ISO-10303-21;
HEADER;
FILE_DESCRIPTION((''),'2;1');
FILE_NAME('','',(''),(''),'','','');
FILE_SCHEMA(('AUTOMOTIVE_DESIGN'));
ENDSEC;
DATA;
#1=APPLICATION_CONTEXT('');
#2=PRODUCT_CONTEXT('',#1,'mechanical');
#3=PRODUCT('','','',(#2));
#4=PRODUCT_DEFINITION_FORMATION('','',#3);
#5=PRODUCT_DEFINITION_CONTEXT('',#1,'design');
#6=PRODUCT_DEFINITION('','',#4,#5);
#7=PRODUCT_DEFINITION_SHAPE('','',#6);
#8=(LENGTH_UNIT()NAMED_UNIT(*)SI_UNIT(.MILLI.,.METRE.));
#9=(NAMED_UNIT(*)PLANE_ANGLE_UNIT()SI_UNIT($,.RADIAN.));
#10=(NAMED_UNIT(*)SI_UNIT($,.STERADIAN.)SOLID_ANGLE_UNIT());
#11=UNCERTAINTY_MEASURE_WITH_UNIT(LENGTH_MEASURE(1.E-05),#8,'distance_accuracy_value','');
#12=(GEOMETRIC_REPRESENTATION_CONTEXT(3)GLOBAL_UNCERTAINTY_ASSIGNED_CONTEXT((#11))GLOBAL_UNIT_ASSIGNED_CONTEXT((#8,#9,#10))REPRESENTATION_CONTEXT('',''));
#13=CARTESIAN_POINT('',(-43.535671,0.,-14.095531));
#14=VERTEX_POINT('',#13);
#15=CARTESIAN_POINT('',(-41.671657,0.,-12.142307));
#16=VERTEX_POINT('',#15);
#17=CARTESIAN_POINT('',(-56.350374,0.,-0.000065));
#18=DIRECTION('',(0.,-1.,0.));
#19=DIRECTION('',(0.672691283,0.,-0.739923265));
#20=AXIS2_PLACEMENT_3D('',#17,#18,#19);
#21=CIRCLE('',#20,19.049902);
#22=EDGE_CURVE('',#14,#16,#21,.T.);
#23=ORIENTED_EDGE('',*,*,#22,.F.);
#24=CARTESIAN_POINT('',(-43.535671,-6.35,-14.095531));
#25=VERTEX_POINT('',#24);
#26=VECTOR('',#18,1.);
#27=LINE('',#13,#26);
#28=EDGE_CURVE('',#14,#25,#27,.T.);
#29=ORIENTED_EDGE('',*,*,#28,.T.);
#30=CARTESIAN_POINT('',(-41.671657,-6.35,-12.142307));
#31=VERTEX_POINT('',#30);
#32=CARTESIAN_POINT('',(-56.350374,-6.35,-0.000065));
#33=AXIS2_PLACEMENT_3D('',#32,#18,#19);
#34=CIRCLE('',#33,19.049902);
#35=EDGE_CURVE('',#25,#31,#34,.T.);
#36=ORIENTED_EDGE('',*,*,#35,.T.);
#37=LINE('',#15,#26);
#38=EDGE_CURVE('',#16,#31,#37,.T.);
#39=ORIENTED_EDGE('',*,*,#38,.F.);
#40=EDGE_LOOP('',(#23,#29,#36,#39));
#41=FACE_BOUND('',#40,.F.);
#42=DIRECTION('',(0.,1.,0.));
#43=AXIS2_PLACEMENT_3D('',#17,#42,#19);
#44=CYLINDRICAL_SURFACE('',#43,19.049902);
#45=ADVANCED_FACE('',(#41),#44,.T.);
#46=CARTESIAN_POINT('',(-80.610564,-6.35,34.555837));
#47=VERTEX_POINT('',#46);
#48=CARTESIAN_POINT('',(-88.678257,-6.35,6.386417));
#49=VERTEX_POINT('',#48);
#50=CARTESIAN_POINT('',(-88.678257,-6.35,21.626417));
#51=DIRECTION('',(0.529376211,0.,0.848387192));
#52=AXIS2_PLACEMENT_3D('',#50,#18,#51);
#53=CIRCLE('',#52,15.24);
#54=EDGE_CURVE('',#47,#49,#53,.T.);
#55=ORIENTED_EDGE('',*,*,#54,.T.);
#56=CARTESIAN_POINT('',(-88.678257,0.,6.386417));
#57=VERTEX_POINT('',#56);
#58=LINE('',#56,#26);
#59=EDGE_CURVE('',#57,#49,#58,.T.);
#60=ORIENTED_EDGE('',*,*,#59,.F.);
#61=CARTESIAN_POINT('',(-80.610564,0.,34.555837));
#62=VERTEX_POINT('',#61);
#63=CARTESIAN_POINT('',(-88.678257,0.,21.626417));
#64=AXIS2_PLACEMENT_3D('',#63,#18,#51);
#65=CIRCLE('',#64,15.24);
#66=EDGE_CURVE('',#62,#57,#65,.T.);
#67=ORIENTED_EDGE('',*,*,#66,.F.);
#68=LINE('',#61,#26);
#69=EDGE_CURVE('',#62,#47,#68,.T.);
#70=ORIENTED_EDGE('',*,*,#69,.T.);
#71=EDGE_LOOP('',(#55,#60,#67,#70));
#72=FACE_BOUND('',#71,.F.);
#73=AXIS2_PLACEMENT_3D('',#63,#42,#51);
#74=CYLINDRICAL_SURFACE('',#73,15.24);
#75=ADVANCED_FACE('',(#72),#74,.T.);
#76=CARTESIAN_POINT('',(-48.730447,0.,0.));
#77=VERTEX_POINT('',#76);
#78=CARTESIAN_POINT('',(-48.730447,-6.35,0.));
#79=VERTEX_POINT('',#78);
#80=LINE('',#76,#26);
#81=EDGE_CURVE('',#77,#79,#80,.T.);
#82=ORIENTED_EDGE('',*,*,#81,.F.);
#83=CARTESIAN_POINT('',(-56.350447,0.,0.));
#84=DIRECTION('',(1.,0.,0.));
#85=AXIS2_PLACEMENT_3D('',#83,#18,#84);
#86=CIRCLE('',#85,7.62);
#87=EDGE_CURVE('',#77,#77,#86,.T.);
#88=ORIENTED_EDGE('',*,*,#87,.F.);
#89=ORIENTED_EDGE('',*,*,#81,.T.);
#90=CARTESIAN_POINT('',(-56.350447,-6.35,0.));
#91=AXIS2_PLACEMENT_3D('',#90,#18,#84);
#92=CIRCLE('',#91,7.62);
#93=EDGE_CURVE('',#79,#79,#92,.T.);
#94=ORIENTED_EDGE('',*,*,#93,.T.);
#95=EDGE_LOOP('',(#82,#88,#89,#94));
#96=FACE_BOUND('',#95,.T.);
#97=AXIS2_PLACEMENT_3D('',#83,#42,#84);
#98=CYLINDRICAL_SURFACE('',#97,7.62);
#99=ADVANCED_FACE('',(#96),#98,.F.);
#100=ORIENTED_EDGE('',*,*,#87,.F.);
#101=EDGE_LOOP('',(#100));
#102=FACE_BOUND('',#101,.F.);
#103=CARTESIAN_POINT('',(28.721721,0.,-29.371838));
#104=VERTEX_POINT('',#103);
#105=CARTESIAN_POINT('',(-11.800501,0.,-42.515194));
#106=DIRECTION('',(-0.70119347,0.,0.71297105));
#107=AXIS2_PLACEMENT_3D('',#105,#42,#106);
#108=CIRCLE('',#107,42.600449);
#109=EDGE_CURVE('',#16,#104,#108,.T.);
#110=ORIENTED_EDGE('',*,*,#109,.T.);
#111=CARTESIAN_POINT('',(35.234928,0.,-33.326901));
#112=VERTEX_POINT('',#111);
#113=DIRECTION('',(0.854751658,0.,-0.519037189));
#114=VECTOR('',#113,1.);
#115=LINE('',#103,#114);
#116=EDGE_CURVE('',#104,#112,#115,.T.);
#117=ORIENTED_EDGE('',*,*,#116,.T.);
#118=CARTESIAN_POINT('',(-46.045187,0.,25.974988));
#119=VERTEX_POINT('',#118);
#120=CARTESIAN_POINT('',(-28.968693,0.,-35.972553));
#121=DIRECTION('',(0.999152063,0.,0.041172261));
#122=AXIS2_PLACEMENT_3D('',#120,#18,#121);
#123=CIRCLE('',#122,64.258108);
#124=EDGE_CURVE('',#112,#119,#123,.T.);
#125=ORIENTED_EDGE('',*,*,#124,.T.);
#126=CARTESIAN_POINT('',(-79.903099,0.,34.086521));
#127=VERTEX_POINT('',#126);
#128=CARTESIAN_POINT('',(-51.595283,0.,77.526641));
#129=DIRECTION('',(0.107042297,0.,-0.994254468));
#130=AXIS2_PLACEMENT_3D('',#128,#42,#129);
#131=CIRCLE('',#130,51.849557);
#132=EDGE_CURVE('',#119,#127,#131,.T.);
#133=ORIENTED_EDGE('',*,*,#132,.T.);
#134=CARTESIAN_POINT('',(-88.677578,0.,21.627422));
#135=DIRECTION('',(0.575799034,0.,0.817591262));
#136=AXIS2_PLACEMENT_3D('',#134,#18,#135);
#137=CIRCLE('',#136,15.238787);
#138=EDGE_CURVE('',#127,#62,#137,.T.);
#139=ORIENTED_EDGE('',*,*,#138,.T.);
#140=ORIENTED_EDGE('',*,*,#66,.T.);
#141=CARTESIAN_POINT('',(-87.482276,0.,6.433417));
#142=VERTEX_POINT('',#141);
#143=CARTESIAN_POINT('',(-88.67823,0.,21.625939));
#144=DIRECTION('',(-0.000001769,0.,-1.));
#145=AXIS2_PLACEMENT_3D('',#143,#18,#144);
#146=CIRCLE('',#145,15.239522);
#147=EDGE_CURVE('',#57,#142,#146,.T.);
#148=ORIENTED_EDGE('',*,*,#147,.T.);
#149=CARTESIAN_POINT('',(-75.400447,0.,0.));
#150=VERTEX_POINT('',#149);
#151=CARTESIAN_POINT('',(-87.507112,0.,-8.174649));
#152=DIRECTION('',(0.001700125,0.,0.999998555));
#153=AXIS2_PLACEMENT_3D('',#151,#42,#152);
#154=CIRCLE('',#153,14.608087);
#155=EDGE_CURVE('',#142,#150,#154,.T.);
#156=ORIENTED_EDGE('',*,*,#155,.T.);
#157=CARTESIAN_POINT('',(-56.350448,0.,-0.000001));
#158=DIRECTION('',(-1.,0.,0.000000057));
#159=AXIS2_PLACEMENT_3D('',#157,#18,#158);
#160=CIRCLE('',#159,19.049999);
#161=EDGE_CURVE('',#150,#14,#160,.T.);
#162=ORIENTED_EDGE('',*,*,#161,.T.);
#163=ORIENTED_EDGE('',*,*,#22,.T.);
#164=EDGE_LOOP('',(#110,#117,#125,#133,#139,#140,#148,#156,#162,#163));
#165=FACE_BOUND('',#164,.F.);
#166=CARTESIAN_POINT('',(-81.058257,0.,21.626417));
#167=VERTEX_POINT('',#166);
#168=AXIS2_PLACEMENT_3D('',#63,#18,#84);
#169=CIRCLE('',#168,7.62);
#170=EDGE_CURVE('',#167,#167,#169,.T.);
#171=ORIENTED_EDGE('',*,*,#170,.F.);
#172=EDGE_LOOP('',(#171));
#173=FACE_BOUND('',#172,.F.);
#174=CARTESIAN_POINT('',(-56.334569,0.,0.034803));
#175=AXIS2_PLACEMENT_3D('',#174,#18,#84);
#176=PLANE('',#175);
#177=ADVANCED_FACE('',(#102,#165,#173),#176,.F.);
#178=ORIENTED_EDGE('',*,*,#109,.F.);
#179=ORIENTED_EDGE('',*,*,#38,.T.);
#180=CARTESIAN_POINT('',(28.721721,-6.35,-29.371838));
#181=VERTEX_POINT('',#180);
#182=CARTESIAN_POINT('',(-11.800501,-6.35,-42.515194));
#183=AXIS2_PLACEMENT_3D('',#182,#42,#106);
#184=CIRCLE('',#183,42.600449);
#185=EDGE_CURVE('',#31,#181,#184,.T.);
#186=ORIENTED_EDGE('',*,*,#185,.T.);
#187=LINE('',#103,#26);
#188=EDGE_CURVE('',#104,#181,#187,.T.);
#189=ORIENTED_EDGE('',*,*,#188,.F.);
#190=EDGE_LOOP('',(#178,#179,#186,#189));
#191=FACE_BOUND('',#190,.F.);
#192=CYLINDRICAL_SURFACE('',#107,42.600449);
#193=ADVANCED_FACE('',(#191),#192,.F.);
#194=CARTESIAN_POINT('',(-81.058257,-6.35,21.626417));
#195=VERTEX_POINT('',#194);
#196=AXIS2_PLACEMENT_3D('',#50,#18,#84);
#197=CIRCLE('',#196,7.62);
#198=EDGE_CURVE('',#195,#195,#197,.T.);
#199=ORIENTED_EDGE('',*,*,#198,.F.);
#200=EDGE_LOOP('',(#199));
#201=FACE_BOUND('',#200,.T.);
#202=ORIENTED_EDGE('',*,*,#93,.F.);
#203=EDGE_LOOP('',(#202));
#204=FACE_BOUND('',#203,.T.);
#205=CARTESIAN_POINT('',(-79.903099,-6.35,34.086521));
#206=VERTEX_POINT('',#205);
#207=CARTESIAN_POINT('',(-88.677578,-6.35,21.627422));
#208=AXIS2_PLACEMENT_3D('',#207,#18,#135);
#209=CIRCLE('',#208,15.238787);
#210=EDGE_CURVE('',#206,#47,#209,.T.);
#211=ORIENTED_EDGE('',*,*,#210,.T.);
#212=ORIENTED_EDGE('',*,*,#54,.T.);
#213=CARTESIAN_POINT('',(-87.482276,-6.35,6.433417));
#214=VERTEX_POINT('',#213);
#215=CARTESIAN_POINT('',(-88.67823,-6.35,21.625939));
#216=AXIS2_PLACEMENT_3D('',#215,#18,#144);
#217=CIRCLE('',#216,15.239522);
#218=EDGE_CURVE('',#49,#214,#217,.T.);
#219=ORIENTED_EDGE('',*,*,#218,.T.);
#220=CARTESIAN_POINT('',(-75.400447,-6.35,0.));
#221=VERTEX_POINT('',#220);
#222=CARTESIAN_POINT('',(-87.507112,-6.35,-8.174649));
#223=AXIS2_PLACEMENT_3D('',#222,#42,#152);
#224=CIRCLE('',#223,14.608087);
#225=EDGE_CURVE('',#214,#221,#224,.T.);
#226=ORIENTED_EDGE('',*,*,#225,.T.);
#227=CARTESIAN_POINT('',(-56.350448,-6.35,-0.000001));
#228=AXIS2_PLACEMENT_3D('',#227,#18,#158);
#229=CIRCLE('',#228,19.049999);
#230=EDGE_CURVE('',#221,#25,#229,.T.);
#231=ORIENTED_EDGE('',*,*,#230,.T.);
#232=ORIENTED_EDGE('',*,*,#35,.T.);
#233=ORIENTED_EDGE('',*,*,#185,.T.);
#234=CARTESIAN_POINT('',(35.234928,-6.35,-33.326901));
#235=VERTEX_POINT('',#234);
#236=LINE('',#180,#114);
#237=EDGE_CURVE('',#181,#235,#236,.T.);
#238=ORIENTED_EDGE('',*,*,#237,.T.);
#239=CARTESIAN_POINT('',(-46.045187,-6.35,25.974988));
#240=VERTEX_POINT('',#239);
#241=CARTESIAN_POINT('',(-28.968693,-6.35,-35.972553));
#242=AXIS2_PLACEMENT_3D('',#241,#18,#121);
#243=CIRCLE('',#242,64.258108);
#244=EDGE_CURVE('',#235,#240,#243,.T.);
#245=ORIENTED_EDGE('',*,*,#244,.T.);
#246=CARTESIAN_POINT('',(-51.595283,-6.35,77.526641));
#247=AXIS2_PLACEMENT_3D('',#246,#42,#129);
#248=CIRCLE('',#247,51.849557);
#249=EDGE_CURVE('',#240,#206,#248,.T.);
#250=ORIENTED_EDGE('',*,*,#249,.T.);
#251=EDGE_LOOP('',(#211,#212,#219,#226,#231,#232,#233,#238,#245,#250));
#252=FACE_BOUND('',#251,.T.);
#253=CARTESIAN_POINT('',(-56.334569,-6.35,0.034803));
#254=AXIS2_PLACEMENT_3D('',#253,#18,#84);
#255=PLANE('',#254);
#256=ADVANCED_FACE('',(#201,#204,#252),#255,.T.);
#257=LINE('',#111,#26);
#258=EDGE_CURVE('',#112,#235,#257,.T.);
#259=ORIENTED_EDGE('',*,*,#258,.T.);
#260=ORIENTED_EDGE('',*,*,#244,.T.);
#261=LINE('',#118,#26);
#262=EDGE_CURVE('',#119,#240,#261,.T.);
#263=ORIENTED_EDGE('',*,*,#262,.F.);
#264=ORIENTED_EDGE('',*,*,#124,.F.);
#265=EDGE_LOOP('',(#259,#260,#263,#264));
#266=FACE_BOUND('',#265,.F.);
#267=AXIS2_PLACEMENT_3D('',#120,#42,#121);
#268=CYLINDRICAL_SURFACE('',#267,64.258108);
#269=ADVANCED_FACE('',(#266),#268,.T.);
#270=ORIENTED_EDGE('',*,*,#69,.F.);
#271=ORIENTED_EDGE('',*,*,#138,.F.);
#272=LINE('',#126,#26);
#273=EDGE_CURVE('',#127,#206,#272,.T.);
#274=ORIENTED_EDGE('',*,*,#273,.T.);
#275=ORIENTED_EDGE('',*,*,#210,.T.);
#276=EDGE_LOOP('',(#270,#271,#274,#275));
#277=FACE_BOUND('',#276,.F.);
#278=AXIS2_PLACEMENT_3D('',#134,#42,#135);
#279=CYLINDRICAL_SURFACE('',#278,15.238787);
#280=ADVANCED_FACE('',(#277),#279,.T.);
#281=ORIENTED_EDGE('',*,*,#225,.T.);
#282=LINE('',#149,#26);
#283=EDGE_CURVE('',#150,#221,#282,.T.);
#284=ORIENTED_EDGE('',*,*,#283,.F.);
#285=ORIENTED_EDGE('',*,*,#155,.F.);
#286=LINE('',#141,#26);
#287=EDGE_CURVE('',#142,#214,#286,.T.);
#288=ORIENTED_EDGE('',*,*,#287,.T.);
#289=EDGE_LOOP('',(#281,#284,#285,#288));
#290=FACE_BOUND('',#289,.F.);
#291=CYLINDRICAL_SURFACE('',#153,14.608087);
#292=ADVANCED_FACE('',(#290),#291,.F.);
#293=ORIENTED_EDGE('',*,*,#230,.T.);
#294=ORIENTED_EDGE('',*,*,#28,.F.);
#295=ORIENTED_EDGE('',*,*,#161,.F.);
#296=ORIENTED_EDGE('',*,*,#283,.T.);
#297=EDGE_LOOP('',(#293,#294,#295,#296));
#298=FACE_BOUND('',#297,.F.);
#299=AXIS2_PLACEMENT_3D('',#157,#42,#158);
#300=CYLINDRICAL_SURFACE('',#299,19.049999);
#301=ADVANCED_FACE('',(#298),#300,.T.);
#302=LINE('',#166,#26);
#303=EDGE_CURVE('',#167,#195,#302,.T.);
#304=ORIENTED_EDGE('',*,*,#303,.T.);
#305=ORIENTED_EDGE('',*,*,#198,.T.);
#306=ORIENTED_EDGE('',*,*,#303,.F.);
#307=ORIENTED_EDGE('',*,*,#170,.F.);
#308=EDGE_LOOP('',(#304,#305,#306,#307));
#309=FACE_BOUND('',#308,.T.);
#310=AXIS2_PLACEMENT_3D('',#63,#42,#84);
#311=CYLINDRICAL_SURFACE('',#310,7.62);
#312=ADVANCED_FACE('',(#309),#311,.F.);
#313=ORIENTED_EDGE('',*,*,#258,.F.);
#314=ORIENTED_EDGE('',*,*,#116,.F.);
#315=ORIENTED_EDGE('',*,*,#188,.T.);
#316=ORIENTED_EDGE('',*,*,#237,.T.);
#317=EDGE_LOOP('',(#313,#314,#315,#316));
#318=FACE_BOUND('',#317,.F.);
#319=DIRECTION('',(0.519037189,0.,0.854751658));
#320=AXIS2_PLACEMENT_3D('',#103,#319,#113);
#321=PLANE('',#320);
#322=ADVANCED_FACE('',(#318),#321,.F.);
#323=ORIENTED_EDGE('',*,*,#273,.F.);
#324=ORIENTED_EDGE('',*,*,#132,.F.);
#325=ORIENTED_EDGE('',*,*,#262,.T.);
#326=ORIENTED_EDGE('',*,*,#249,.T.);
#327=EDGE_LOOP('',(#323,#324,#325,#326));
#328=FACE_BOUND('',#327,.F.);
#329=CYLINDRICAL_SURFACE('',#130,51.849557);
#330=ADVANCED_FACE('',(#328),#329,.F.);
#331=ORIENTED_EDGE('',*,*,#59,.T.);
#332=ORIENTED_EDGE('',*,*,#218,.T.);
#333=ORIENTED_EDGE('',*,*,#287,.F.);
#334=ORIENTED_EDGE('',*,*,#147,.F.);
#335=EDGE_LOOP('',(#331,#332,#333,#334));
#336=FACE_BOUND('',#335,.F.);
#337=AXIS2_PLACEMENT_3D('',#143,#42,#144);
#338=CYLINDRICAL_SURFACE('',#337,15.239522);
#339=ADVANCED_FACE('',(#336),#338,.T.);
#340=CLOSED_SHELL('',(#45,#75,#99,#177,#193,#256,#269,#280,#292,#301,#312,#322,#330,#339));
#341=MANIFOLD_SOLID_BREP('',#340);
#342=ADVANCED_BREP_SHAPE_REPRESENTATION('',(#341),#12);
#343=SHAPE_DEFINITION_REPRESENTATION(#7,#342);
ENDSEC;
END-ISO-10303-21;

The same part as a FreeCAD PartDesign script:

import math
import FreeCAD as App
import Part
import Sketcher
from FreeCAD import Vector
Q = App.Units.Quantity

doc = App.newDocument("Part")
params = doc.addObject("Spreadsheet::Sheet", "Params")
for row, (alias, value) in enumerate([
    ("sketch1_diameter", "0.6 in"),
    ("sketch1_diameter2", "0.6 in"),
    ("sketch1_radius", "0.6 in"),
    ("sketch1_radius2", "0.75 in"),
    ("sketch1_length", "0.3 in"),
    ("pad1_length", "0.25 in"),
], start=1):
    params.set(f"A{row}", alias)
    params.set(f"B{row}", "=" + value)
    params.setAlias(f"B{row}", alias)

body = doc.addObject("PartDesign::Body", "Body")

# Sketch on XZ plane
sketch1 = body.newObject("Sketcher::SketchObject", "Sketch")
sketch1.AttachmentSupport = (doc.getObject("XZ_Plane"), [""])
sketch1.MapMode = "FlatFace"
sketch1.addGeometry([
    Part.ArcOfCircle(Part.Circle(Vector(-11.800501, -42.515194, 0), Vector(0, 0, 1), 42.600449), math.radians(17.970436), math.radians(134.522835)),  # 0
    Part.LineSegment(Vector(28.721721, -29.371838, 0), Vector(35.234928, -33.326901, 0)),  # 1
    Part.ArcOfCircle(Part.Circle(Vector(-28.968693, -35.972553, 0), Vector(0, 0, 1), 64.258108), math.radians(2.359664), math.radians(105.411432)),  # 2
    Part.ArcOfCircle(Part.Circle(Vector(-51.595283, 77.526641, 0), Vector(0, 0, 1), 51.849557), math.radians(-123.090334), math.radians(-83.855155)),  # 3
    Part.ArcOfCircle(Part.Circle(Vector(-88.677578, 21.627422, 0), Vector(0, 0, 1), 15.238787), math.radians(54.844392), math.radians(58.036849)),  # 4
    Part.ArcOfCircle(Part.Circle(Vector(-88.678257, 21.626417, 0), Vector(0, 0, 1), 15.24), math.radians(58.036682), math.radians(270.000001)),  # 5
    Part.ArcOfCircle(Part.Circle(Vector(-88.67823, 21.625939, 0), Vector(0, 0, 1), 15.239522), math.radians(-90.000101), math.radians(-85.498963)),  # 6
    Part.ArcOfCircle(Part.Circle(Vector(-87.507112, -8.174649, 0), Vector(0, 0, 1), 14.608087), math.radians(34.027967), math.radians(89.90259)),  # 7
    Part.ArcOfCircle(Part.Circle(Vector(-56.350448, -0.000001, 0), Vector(0, 0, 1), 19.049999), math.radians(179.999997), math.radians(312.275155)),  # 8
    Part.ArcOfCircle(Part.Circle(Vector(-56.350374, -0.000065, 0), Vector(0, 0, 1), 19.049902), math.radians(-47.724879), math.radians(-39.597569)),  # 9
    Part.Circle(Vector(-56.350447, 0, 0), Vector(0, 0, 1), 7.62),  # 10
    Part.Circle(Vector(-88.678257, 21.626417, 0), Vector(0, 0, 1), 7.62),  # 11
], False)
sketch1.addConstraint([
    Sketcher.Constraint("Coincident", 0, 1, 1, 1),
    Sketcher.Constraint("Coincident", 1, 2, 2, 1),
    Sketcher.Constraint("Coincident", 2, 2, 3, 2),
    Sketcher.Constraint("Coincident", 3, 1, 4, 1),
    Sketcher.Constraint("Coincident", 4, 2, 5, 1),
    Sketcher.Constraint("Coincident", 5, 2, 6, 1),
    Sketcher.Constraint("Coincident", 6, 2, 7, 2),
    Sketcher.Constraint("Coincident", 7, 1, 8, 1),
    Sketcher.Constraint("Coincident", 8, 2, 9, 1),
    Sketcher.Constraint("Coincident", 9, 2, 0, 2),
    Sketcher.Constraint("Coincident", 10, 3, 8, 3),
    Sketcher.Constraint("Coincident", 11, 3, 5, 3),
    Sketcher.Constraint("PointOnObject", 8, 3, -1),
    Sketcher.Constraint("PointOnObject", 7, 1, -1),
    Sketcher.Constraint("Diameter", 10, Q("0.6 in")),
    Sketcher.Constraint("Diameter", 11, Q("0.6 in")),
    Sketcher.Constraint("Radius", 5, Q("0.6 in")),
    Sketcher.Constraint("Radius", 8, Q("0.75 in")),
    Sketcher.Constraint("Distance", 1, Q("0.3 in")),
    Sketcher.Constraint("Radius", 0, Q("42.600449 mm")),
    Sketcher.Constraint("Radius", 6, Q("15.239522 mm")),
    Sketcher.Constraint("Radius", 2, Q("64.258108 mm")),
    Sketcher.Constraint("Radius", 3, Q("51.849557 mm")),
    Sketcher.Constraint("Radius", 4, Q("15.238787 mm")),
    Sketcher.Constraint("Radius", 7, Q("14.608087 mm")),
    Sketcher.Constraint("Radius", 9, Q("19.049902 mm")),
    Sketcher.Constraint("DistanceY", 0, 3, 4, 3, Q("2.5252998 in")),
    Sketcher.Constraint("DistanceY", 2, 3, 8, 2, Q("0.8613001 in")),
    Sketcher.Constraint("DistanceX", 0, 3, -1, 1, Q("11.800501 mm")),
    Sketcher.Constraint("DistanceY", 1, 2, -1, 1, Q("33.326901 mm")),
    Sketcher.Constraint("DistanceX", 3, 1, -1, 1, Q("79.903099 mm")),
    Sketcher.Constraint("DistanceY", 4, 3, 3, 1, Q("12.459099 mm")),
    Sketcher.Constraint("DistanceY", 6, 3, 4, 2, Q("12.929898 mm")),
    Sketcher.Constraint("DistanceY", 5, 2, 6, 2, Q("0.047 mm")),
    Sketcher.Constraint("DistanceY", -1, 1, 3, 3, Q("77.526641 mm")),
    Sketcher.Constraint("DistanceY", -1, 1, 4, 3, Q("21.627422 mm")),
    Sketcher.Constraint("DistanceX", 6, 3, -1, 1, Q("88.67823 mm")),
    Sketcher.Constraint("DistanceY", -1, 1, 6, 3, Q("21.625939 mm")),
    Sketcher.Constraint("DistanceX", 7, 3, -1, 1, Q("87.507112 mm")),
    Sketcher.Constraint("DistanceX", -1, 1, 0, 1, Q("28.721721 mm")),
    Sketcher.Constraint("DistanceX", 8, 2, -1, 1, Q("43.535671 mm")),
    Sketcher.Constraint("DistanceY", 9, 3, 5, 3, Q("21.626482 mm")),
    Sketcher.Constraint("DistanceX", 5, 2, 4, 3, Q("0.000679 mm")),
])
sketch1.setExpression("Constraints[14]", "Params.sketch1_diameter")
sketch1.setExpression("Constraints[15]", "Params.sketch1_diameter2")
sketch1.setExpression("Constraints[16]", "Params.sketch1_radius")
sketch1.setExpression("Constraints[17]", "Params.sketch1_radius2")
sketch1.setExpression("Constraints[18]", "Params.sketch1_length")
pad1 = body.newObject("PartDesign::Pad", "Pad")
pad1.Profile = sketch1
pad1.setExpression("Length", "Params.pad1_length")

doc.recompute()
